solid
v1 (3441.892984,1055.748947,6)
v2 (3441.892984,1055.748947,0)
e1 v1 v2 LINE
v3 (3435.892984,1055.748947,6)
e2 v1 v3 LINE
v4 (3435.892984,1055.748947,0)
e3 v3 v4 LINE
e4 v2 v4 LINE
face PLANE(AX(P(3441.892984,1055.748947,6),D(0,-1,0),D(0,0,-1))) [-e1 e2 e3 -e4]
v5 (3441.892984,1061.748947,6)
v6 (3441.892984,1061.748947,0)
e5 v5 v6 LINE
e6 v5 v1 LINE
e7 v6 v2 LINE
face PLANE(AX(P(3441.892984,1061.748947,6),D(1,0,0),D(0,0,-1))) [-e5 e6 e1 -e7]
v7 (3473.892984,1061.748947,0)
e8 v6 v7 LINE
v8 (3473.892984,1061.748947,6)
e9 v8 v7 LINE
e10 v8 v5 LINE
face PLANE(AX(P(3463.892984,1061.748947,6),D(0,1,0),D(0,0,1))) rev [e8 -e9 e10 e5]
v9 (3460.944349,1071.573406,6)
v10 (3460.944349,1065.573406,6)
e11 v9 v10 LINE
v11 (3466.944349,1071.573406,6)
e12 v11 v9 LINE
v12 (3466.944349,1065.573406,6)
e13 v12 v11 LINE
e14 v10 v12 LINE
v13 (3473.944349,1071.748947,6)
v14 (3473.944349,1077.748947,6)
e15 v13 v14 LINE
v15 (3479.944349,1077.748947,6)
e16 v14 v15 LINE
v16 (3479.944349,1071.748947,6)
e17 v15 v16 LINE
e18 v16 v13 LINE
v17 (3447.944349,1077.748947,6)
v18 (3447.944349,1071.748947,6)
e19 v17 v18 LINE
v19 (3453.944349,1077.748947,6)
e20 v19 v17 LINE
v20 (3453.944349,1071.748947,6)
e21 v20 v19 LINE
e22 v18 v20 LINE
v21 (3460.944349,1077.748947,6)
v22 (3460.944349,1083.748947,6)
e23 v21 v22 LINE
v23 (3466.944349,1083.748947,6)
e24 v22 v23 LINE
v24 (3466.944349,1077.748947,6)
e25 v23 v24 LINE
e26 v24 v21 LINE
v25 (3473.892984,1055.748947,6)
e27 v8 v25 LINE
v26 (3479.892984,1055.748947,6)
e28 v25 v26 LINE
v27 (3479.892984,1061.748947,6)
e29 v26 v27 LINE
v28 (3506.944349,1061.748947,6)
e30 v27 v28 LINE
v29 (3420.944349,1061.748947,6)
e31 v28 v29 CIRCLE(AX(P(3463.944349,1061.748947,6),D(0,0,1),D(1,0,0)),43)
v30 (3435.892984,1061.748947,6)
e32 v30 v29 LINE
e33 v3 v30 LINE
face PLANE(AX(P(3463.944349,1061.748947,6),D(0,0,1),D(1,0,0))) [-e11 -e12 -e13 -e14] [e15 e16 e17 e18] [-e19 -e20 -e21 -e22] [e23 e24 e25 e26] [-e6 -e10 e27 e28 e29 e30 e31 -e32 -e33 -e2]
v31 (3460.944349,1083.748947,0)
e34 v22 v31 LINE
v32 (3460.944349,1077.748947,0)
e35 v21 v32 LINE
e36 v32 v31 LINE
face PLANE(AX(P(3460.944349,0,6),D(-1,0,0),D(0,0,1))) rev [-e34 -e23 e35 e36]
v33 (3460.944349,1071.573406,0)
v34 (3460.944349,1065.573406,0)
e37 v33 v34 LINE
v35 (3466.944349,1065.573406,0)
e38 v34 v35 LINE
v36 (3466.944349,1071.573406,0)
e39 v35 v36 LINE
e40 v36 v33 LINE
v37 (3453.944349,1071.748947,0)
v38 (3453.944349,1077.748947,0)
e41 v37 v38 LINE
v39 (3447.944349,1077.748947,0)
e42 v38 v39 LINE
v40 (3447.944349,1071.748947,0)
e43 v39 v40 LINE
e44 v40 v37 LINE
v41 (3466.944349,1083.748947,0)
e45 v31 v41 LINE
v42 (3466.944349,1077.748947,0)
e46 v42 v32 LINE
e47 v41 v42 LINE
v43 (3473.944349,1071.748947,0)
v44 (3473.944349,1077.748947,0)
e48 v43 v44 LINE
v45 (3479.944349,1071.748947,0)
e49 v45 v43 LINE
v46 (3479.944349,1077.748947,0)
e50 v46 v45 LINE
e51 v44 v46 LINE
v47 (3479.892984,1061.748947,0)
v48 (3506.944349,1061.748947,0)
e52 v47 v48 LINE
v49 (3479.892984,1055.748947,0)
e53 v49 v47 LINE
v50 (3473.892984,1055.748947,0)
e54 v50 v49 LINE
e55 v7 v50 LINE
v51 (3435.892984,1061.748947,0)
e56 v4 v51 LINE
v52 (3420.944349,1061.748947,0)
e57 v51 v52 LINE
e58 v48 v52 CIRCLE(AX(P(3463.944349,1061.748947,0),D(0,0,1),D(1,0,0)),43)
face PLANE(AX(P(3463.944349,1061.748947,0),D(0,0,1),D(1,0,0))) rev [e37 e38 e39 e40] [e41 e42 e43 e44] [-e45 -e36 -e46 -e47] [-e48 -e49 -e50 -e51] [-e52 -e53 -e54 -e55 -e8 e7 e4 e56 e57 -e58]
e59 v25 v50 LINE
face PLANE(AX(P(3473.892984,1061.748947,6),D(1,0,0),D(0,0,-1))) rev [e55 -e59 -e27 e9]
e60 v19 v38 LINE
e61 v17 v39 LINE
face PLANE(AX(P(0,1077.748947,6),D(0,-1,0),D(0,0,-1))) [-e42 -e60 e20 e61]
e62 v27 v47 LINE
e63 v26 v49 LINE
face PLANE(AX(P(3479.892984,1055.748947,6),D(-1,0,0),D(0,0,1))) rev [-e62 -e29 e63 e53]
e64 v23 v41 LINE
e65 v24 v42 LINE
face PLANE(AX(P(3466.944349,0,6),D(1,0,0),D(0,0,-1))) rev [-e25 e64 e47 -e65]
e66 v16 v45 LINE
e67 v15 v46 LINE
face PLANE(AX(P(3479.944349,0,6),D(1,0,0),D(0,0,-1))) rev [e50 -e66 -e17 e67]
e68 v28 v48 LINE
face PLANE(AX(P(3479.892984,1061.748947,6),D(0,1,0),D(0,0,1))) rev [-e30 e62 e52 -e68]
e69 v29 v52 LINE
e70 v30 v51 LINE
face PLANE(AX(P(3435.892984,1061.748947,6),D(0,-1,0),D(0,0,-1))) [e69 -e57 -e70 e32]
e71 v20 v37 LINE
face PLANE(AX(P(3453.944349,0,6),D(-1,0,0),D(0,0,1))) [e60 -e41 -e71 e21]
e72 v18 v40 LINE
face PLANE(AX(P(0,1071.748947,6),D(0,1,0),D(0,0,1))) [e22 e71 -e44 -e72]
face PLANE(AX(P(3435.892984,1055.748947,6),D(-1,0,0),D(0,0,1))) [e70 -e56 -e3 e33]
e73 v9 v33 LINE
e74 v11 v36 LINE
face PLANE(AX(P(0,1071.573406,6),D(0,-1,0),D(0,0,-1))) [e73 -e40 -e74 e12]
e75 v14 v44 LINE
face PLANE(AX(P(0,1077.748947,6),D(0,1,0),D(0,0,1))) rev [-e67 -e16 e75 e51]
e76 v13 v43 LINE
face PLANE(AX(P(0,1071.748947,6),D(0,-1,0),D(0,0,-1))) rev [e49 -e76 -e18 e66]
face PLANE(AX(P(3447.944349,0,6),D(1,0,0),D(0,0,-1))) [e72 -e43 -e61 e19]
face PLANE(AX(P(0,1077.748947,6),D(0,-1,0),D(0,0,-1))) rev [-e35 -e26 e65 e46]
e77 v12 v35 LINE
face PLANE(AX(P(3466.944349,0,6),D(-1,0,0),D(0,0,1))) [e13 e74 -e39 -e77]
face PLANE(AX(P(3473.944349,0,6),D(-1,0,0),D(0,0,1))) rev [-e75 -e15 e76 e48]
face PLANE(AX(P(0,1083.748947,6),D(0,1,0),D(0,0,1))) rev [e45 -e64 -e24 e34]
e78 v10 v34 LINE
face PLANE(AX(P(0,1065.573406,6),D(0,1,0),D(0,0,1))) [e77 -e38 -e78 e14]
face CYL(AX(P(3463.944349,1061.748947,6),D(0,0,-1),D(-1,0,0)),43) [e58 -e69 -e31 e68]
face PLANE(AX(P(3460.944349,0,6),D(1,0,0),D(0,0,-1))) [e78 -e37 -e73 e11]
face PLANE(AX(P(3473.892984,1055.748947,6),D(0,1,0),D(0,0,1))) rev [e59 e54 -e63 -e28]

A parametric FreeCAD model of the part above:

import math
import FreeCAD as App
import Part
import Sketcher


def add_polygon(sketch, points):
    """Adds a closed chain of lines whose ends are joined by coincident constraints."""
    first, n = sketch.GeometryCount, len(points)
    for a, b in zip(points, points[1:] + points[:1]):
        sketch.addGeometry(Part.LineSegment(App.Vector(*a, 0), App.Vector(*b, 0)), False)
    for i in range(n):
        sketch.addConstraint(Sketcher.Constraint("Coincident", first + i, 2, first + (i + 1) % n, 1))

doc = App.newDocument("Part")
body = doc.addObject("PartDesign::Body", "Body")

sketch1 = body.newObject("Sketcher::SketchObject", "Sketch")
sketch1.AttachmentSupport = (doc.getObject("XY_Plane"), [""])
sketch1.MapMode = "FlatFace"
sketch1.addGeometry(Part.LineSegment(App.Vector(3474, 1062, 0), App.Vector(3474, 1056, 0)), False)
sketch1.addGeometry(Part.LineSegment(App.Vector(3474, 1056, 0), App.Vector(3480, 1056, 0)), False)
sketch1.addGeometry(Part.LineSegment(App.Vector(3480, 1056, 0), App.Vector(3480, 1062, 0)), False)
sketch1.addGeometry(Part.LineSegment(App.Vector(3480, 1062, 0), App.Vector(3507, 1062, 0)), False)
sketch1.addGeometry(Part.ArcOfCircle(Part.Circle(App.Vector(3464, 1062, 0), App.Vector(0, 0, 1), 43), math.radians(0), math.radians(180)), False)
sketch1.addGeometry(Part.LineSegment(App.Vector(3421, 1062, 0), App.Vector(3436, 1062, 0)), False)
sketch1.addGeometry(Part.LineSegment(App.Vector(3436, 1062, 0), App.Vector(3436, 1056, 0)), False)
sketch1.addGeometry(Part.LineSegment(App.Vector(3436, 1056, 0), App.Vector(3442, 1056, 0)), False)
sketch1.addGeometry(Part.LineSegment(App.Vector(3442, 1056, 0), App.Vector(3442, 1062, 0)), False)
sketch1.addGeometry(Part.LineSegment(App.Vector(3442, 1062, 0), App.Vector(3474, 1062, 0)), False)
add_polygon(sketch1, [(3467, 1066), (3461, 1066), (3461, 1072), (3467, 1072)])
add_polygon(sketch1, [(3454, 1072), (3448, 1072), (3448, 1078), (3454, 1078)])
add_polygon(sketch1, [(3480, 1072), (3474, 1072), (3474, 1078), (3480, 1078)])
add_polygon(sketch1, [(3467, 1078), (3461, 1078), (3461, 1084), (3467, 1084)])
sketch1.addConstraint([
    Sketcher.Constraint("Coincident", 0, 2, 1, 1),
    Sketcher.Constraint("Coincident", 1, 2, 2, 1),
    Sketcher.Constraint("Coincident", 2, 2, 3, 1),
    Sketcher.Constraint("Coincident", 3, 2, 4, 1),
    Sketcher.Constraint("Coincident", 4, 2, 5, 1),
    Sketcher.Constraint("Coincident", 5, 2, 6, 1),
    Sketcher.Constraint("Coincident", 6, 2, 7, 1),
    Sketcher.Constraint("Coincident", 7, 2, 8, 1),
    Sketcher.Constraint("Coincident", 8, 2, 9, 1),
    Sketcher.Constraint("Coincident", 9, 2, 0, 1),
    Sketcher.Constraint("Vertical", 0),
    Sketcher.Constraint("Horizontal", 1),
    Sketcher.Constraint("Vertical", 2),
    Sketcher.Constraint("Horizontal", 3),
    Sketcher.Constraint("Horizontal", 5),
    Sketcher.Constraint("Vertical", 6),
    Sketcher.Constraint("Horizontal", 7),
    Sketcher.Constraint("Vertical", 8),
    Sketcher.Constraint("Horizontal", 9),
    Sketcher.Constraint("Horizontal", 10),
    Sketcher.Constraint("Vertical", 11),
    Sketcher.Constraint("Horizontal", 12),
    Sketcher.Constraint("Vertical", 13),
    Sketcher.Constraint("Horizontal", 14),
    Sketcher.Constraint("Vertical", 15),
    Sketcher.Constraint("Horizontal", 16),
    Sketcher.Constraint("Vertical", 17),
    Sketcher.Constraint("Horizontal", 18),
    Sketcher.Constraint("Vertical", 19),
    Sketcher.Constraint("Horizontal", 20),
    Sketcher.Constraint("Vertical", 21),
    Sketcher.Constraint("Horizontal", 22),
    Sketcher.Constraint("Vertical", 23),
    Sketcher.Constraint("Horizontal", 24),
    Sketcher.Constraint("Vertical", 25),
    Sketcher.Constraint("Horizontal", 4, 3, 2, 2),
    Sketcher.Constraint("Horizontal", 3, 2, 4, 2),
    Sketcher.Constraint("Horizontal", 1, 2, 6, 2),
    Sketcher.Constraint("Horizontal", 5, 2, 8, 2),
    Sketcher.Constraint("Horizontal", 17, 2, 18, 2),
    Sketcher.Constraint("Horizontal", 16, 2, 19, 2),
    Sketcher.Constraint("Horizontal", 20, 2, 22, 2),
    Sketcher.Constraint("Vertical", 11, 2, 22, 2),
    Sketcher.Constraint("Vertical", 13, 2, 24, 2),
    Sketcher.Constraint("Equal", 1, 7),
    Sketcher.Constraint("Equal", 7, 10),
    Sketcher.Constraint("Equal", 12, 14),
    Sketcher.Constraint("Equal", 16, 18),
    Sketcher.Constraint("Equal", 24, 0),
    Sketcher.Constraint("Equal", 8, 11),
    Sketcher.Constraint("Equal", 13, 15),
    Sketcher.Constraint("Equal", 21, 23),
    Sketcher.Constraint("Radius", 4, 43.0),
    Sketcher.Constraint("DistanceX", 1, 1, 1, 2, 6.0),
    Sketcher.Constraint("DistanceX", 9, 1, 9, 2, 32.0),
    Sketcher.Constraint("DistanceX", 10, 2, 4, 3, 3.0),
    Sketcher.Constraint("DistanceY", 8, 2, 14, 2, 10.0),
    Sketcher.Constraint("DistanceX", 14, 2, 11, 2, 13.0),
    Sketcher.Constraint("DistanceX", 12, 2, 18, 2, 7.0),
    Sketcher.Constraint("DistanceX", 3, 1, 3, 2, 27.051365),
    Sketcher.Constraint("DistanceX", -1, 1, 4, 3, 3463.944349),
    Sketcher.Constraint("DistanceY", 4, 3, 10, 2, 3.824459),
    Sketcher.Constraint("DistanceY", -1, 1, 4, 3, 1061.748947),
])
pad1 = body.newObject("PartDesign::Pad", "Pad")
pad1.Profile = sketch1
pad1.Length = 6

doc.recompute()
